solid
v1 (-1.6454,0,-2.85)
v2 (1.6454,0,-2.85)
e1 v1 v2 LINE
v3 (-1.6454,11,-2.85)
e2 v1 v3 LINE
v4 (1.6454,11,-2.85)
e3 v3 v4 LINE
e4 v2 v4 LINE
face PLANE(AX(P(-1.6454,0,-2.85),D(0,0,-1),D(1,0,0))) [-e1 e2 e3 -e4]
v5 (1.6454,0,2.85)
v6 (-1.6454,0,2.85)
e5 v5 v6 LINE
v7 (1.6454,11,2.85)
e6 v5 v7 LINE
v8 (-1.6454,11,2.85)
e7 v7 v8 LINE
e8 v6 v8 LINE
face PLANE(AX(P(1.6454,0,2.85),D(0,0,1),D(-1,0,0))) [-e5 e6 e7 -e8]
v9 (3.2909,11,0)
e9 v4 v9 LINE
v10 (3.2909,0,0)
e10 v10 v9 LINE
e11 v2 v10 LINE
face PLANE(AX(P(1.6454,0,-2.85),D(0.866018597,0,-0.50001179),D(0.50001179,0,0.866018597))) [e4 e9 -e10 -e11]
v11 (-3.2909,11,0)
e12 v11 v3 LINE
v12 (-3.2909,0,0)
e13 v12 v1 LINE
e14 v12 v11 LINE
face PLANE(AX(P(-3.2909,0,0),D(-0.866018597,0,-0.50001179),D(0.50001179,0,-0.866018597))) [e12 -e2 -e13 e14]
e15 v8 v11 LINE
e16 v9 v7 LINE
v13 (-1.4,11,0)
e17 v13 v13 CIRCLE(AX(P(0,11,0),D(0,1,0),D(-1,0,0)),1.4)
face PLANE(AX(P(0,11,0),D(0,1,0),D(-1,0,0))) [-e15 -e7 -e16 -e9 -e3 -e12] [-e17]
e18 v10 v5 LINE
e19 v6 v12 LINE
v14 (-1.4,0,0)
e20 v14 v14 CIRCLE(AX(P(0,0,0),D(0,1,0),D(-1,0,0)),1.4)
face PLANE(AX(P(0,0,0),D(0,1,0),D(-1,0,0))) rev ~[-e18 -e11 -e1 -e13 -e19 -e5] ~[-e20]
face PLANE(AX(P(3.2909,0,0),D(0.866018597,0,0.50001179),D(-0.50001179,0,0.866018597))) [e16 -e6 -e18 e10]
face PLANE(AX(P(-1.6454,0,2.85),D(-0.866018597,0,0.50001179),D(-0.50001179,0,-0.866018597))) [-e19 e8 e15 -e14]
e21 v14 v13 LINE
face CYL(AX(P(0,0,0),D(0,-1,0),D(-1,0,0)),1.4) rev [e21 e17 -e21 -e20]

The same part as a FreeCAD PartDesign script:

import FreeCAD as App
import Part
import Sketcher
Q = App.Units.Quantity

doc = App.newDocument("Part")
params = doc.addObject("Spreadsheet::Sheet", "Params")
for row, (alias, value) in enumerate([
    ("sketch1_diameter", "2.8 mm"),
    ("pad1_length", "11 mm"),
], start=1):
    params.set(f"A{row}", alias)
    params.set(f"B{row}", "=" + value)
    params.setAlias(f"B{row}", alias)

body = doc.addObject("PartDesign::Body", "Body")

# Sketch on XZ plane
sketch1 = body.newObject("Sketcher::SketchObject", "Sketch")
sketch1.AttachmentSupport = (doc.getObject("XZ_Plane"), [""])
sketch1.MapMode = "FlatFace"
sketch1.addGeometry([
    Part.LineSegment(App.Vector(1.6, -2.9, 0), App.Vector(-1.6, -2.9, 0)),  # 0
    Part.LineSegment(App.Vector(-1.6, -2.9, 0), App.Vector(-3.3, 0, 0)),  # 1
    Part.LineSegment(App.Vector(-3.3, 0, 0), App.Vector(-1.6, 2.9, 0)),  # 2
    Part.LineSegment(App.Vector(-1.6, 2.9, 0), App.Vector(1.6, 2.9, 0)),  # 3
    Part.LineSegment(App.Vector(1.6, 2.9, 0), App.Vector(3.3, 0, 0)),  # 4
    Part.LineSegment(App.Vector(3.3, 0, 0), App.Vector(1.6, -2.9, 0)),  # 5
    Part.Circle(App.Vector(0, 0, 0), App.Vector(0, 0, 1), 1.4),  # 6
], False)
sketch1.addConstraint([
    Sketcher.Constraint("Coincident", 0, 2, 1, 1),
    Sketcher.Constraint("Coincident", 1, 2, 2, 1),
    Sketcher.Constraint("Coincident", 2, 2, 3, 1),
    Sketcher.Constraint("Coincident", 3, 2, 4, 1),
    Sketcher.Constraint("Coincident", 4, 2, 5, 1),
    Sketcher.Constraint("Coincident", 5, 2, 0, 1),
    Sketcher.Constraint("Horizontal", 0),
    Sketcher.Constraint("Horizontal", 3),
    Sketcher.Constraint("Coincident", 6, 3, -1, 1),
    Sketcher.Constraint("Symmetric", 0, 2, 3, 2, -1, 1),
    Sketcher.Constraint("Symmetric", 1, 2, 4, 2, -1, 1),
    Sketcher.Constraint("PointOnObject", 1, 2, -1),
    Sketcher.Constraint("Parallel", 2, 5),
    Sketcher.Constraint("Vertical", 0, 2, 2, 2),
    Sketcher.Constraint("Diameter", 6, 2.8),
    Sketcher.Constraint("DistanceY", 0, 2, 2, 2, 5.7),
    Sketcher.Constraint("Angle", 1, Q("120.0008 deg")),
    Sketcher.Constraint("DistanceX", 0, 2, 0, 1, 3.2908),
])
sketch1.setExpression("Constraints[14]", "Params.sketch1_diameter")
pad1 = body.newObject("PartDesign::Pad", "Pad")
pad1.Profile = sketch1
pad1.setExpression("Length", "Params.pad1_length")
pad1.Reversed = True

doc.recompute()
